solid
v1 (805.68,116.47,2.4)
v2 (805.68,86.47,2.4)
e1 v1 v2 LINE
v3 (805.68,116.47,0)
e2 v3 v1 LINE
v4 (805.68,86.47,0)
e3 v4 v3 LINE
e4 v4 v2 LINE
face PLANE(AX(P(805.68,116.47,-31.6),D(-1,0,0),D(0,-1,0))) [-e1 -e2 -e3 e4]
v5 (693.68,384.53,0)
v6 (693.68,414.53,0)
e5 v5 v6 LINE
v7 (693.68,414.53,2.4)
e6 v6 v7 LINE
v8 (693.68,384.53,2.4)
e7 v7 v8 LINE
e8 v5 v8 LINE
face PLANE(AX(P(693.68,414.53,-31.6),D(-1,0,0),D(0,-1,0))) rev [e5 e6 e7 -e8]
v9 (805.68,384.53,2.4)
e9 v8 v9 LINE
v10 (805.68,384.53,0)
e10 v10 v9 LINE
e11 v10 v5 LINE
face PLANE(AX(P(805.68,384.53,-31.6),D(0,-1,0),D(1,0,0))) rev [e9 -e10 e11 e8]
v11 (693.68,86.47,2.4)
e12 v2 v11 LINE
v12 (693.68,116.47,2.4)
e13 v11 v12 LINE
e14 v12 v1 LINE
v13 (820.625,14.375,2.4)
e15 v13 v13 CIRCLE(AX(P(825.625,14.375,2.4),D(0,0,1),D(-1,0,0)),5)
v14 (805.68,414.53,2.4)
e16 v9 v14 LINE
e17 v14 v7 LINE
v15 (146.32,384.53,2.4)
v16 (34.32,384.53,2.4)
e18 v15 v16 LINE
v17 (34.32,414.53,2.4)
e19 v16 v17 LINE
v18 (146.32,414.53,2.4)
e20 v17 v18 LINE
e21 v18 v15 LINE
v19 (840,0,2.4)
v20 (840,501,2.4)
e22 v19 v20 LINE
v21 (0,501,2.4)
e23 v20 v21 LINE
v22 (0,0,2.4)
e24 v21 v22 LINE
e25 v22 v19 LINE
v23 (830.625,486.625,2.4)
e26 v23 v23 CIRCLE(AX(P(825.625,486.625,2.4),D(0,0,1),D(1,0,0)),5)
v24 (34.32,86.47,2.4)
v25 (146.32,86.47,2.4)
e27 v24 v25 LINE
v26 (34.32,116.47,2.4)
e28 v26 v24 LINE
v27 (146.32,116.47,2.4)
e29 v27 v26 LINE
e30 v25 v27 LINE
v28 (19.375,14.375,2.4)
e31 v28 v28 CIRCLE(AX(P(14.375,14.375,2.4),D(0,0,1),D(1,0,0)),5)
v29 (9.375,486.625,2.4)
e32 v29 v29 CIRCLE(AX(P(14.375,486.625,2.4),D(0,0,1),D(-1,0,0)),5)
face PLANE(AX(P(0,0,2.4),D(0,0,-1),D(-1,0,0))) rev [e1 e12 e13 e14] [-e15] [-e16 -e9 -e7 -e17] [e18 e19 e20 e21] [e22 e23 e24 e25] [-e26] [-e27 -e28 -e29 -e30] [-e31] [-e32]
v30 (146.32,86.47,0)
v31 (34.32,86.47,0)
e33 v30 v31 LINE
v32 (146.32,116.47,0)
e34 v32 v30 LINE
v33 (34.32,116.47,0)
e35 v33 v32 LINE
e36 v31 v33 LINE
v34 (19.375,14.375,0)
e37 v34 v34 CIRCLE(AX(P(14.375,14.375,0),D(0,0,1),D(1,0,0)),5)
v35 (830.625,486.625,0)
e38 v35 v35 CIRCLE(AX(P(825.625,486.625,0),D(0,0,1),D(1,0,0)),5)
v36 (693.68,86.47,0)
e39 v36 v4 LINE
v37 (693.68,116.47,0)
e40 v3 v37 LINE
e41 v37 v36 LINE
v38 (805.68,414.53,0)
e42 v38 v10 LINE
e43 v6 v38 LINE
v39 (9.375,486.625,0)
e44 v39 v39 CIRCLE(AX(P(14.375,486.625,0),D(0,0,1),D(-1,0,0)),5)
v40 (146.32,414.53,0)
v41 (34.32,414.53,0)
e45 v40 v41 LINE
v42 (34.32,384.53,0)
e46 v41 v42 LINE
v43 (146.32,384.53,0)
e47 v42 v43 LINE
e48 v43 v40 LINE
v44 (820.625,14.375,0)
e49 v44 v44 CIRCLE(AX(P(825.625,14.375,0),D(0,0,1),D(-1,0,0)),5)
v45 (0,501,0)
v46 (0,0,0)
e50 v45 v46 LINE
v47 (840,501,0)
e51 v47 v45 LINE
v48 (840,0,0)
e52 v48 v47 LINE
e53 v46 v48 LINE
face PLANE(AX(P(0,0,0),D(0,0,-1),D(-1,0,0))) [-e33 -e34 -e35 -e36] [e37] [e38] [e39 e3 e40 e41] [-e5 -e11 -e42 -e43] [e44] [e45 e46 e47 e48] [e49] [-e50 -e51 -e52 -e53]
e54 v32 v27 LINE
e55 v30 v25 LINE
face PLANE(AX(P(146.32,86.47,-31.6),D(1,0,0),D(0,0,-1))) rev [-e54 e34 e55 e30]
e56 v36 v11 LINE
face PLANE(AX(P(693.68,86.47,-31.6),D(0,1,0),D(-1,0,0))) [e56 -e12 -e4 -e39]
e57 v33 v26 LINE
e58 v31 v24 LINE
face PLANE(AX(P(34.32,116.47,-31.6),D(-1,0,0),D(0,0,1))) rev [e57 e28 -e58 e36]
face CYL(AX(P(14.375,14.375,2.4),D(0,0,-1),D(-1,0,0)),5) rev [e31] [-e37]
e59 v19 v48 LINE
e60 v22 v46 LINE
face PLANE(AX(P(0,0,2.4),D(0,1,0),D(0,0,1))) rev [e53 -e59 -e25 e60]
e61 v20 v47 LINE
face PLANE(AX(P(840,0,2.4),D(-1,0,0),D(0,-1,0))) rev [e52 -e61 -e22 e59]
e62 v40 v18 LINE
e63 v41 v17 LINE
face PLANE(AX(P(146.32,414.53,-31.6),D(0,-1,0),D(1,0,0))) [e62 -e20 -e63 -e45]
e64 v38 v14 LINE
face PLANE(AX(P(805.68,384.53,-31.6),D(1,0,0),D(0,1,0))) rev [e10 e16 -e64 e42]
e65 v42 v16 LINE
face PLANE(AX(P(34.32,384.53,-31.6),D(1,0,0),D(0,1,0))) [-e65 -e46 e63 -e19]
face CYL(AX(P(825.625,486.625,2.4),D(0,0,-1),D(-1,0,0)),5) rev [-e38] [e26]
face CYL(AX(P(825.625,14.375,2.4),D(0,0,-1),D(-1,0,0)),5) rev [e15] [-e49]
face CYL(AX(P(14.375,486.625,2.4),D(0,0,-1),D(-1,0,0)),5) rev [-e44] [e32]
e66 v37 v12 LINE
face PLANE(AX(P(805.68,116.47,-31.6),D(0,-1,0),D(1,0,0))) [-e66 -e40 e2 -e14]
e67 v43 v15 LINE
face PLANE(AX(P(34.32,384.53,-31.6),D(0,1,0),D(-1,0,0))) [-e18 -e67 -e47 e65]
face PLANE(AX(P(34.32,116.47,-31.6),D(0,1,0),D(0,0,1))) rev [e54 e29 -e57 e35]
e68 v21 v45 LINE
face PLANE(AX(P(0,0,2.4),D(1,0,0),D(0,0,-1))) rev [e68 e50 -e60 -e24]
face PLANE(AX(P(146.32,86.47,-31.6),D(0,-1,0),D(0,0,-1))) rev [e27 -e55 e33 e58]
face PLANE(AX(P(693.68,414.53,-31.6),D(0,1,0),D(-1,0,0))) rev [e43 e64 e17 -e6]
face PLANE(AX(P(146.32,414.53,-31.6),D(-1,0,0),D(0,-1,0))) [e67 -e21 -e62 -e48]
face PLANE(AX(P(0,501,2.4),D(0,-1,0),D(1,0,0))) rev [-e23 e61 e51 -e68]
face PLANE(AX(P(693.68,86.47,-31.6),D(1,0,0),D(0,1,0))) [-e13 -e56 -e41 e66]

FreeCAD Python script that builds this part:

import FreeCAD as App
import Part
import Sketcher

V = App.Vector
Q = App.Units.Quantity

doc = App.newDocument("Part")
body = doc.addObject("PartDesign::Body", "Body")

sketch1 = body.newObject("Sketcher::SketchObject", "Sketch")
sketch1.AttachmentSupport = (doc.getObject("XY_Plane"), [""])
sketch1.MapMode = "FlatFace"
sketch1.addGeometry([
    Part.LineSegment(V(0, 501, 0), V(0, 0, 0)),
    Part.LineSegment(V(0, 0, 0), V(840, 0, 0)),
    Part.LineSegment(V(840, 0, 0), V(840, 501, 0)),
    Part.LineSegment(V(840, 501, 0), V(0, 501, 0)),
    Part.Circle(V(14, 14, 0), V(0, 0, 1), 5),
    Part.Circle(V(826, 14, 0), V(0, 0, 1), 5),
    Part.Circle(V(14, 487, 0), V(0, 0, 1), 5),
    Part.Circle(V(826, 487, 0), V(0, 0, 1), 5),
], False)
sketch1.addConstraint([
    Sketcher.Constraint("Coincident", 0, 2, 1, 1),
    Sketcher.Constraint("Coincident", 1, 2, 2, 1),
    Sketcher.Constraint("Coincident", 2, 2, 3, 1),
    Sketcher.Constraint("Coincident", 3, 2, 0, 1),
    Sketcher.Constraint("Vertical", 0),
    Sketcher.Constraint("Horizontal", 1),
    Sketcher.Constraint("Vertical", 2),
    Sketcher.Constraint("Horizontal", 3),
    Sketcher.Constraint("Coincident", 0, 2, -1, 1),
    Sketcher.Constraint("Equal", 4, 5),
    Sketcher.Constraint("Equal", 5, 6),
    Sketcher.Constraint("Equal", 6, 7),
    Sketcher.Constraint("Horizontal", 4, 3, 5, 3),
    Sketcher.Constraint("Horizontal", 6, 3, 7, 3),
    Sketcher.Constraint("Vertical", 4, 3, 6, 3),
    Sketcher.Constraint("Vertical", 5, 3, 7, 3),
    Sketcher.Constraint("Diameter", 4, Q("10 mm")),
    Sketcher.Constraint("DistanceX", 1, 1, 1, 2, Q("840 mm")),
    Sketcher.Constraint("DistanceY", 0, 2, 0, 1, Q("501 mm")),
    Sketcher.Constraint("DistanceX", 4, 3, 5, 3, Q("811.25 mm")),
    Sketcher.Constraint("DistanceY", 4, 3, 6, 3, Q("472.25 mm")),
    Sketcher.Constraint("DistanceX", -1, 1, 4, 3, Q("14.375 mm")),
    Sketcher.Constraint("DistanceY", -1, 1, 4, 3, Q("14.375 mm")),
])
pad1 = body.newObject("PartDesign::Pad", "Pad")
pad1.Profile = sketch1
pad1.Length = 2.4

sketch2 = body.newObject("Sketcher::SketchObject", "Sketch001")
sketch2.AttachmentSupport = (doc.getObject("XY_Plane"), [""])
sketch2.MapMode = "FlatFace"
sketch2.AttachmentOffset = App.Placement(V(0, 0, 2.4), App.Rotation())
sketch2.addGeometry([
    Part.LineSegment(V(34, 116, 0), V(34, 86, 0)),
    Part.LineSegment(V(34, 86, 0), V(146, 86, 0)),
    Part.LineSegment(V(146, 86, 0), V(146, 116, 0)),
    Part.LineSegment(V(146, 116, 0), V(34, 116, 0)),
], False)
sketch2.addConstraint([
    Sketcher.Constraint("Coincident", 0, 2, 1, 1),
    Sketcher.Constraint("Coincident", 1, 2, 2, 1),
    Sketcher.Constraint("Coincident", 2, 2, 3, 1),
    Sketcher.Constraint("Coincident", 3, 2, 0, 1),
    Sketcher.Constraint("Vertical", 0),
    Sketcher.Constraint("Horizontal", 1),
    Sketcher.Constraint("Vertical", 2),
    Sketcher.Constraint("Horizontal", 3),
    Sketcher.Constraint("DistanceX", 1, 1, 1, 2, Q("112 mm")),
    Sketcher.Constraint("DistanceY", 0, 2, 0, 1, Q("30 mm")),
    Sketcher.Constraint("DistanceX", -1, 1, 0, 2, Q("34.32 mm")),
    Sketcher.Constraint("DistanceY", -1, 1, 0, 2, Q("86.47 mm")),
])
pocket1 = body.newObject("PartDesign::Pocket", "Pocket")
pocket1.Profile = sketch2
pocket1.Length = 34
doc.recompute()

datumplane = body.newObject("PartDesign::Plane", "DatumPlane")
datumplane.AttachmentSupport = (doc.getObject("YZ_Plane"), [""])
datumplane.MapMode = "FlatFace"
datumplane.AttachmentOffset = App.Placement(V(0, 0, 420), App.Rotation())
mirrored = body.newObject("PartDesign::Mirrored", "Mirrored")
mirrored.Originals = [pocket1]
mirrored.MirrorPlane = (datumplane, [""])
body.Tip = mirrored
doc.recompute()

datumplane2 = body.newObject("PartDesign::Plane", "DatumPlane001")
datumplane2.AttachmentSupport = (doc.getObject("XZ_Plane"), [""])
datumplane2.MapMode = "FlatFace"
datumplane2.AttachmentOffset = App.Placement(V(0, 0, -250.5), App.Rotation())
mirrored2 = body.newObject("PartDesign::Mirrored", "Mirrored001")
mirrored2.Originals = [pocket1]
mirrored2.MirrorPlane = (datumplane2, [""])
body.Tip = mirrored2

sketch3 = body.newObject("Sketcher::SketchObject", "Sketch002")
sketch3.AttachmentSupport = (doc.getObject("XY_Plane"), [""])
sketch3.MapMode = "FlatFace"
sketch3.AttachmentOffset = App.Placement(V(0, 0, 2.4), App.Rotation())
sketch3.addGeometry([
    Part.LineSegment(V(806, 385, 0), V(806, 415, 0)),
    Part.LineSegment(V(806, 415, 0), V(694, 415, 0)),
    Part.LineSegment(V(694, 415, 0), V(694, 385, 0)),
    Part.LineSegment(V(694, 385, 0), V(806, 385, 0)),
], False)
sketch3.addConstraint([
    Sketcher.Constraint("Coincident", 0, 2, 1, 1),
    Sketcher.Constraint("Coincident", 1, 2, 2, 1),
    Sketcher.Constraint("Coincident", 2, 2, 3, 1),
    Sketcher.Constraint("Coincident", 3, 2, 0, 1),
    Sketcher.Constraint("Vertical", 0),
    Sketcher.Constraint("Horizontal", 1),
    Sketcher.Constraint("Vertical", 2),
    Sketcher.Constraint("Horizontal", 3),
    Sketcher.Constraint("DistanceX", 1, 2, 1, 1, Q("112 mm")),
    Sketcher.Constraint("DistanceY", 0, 1, 0, 2, Q("30 mm")),
    Sketcher.Constraint("DistanceX", -1, 1, 0, 2, Q("805.68 mm")),
    Sketcher.Constraint("DistanceY", -1, 1, 0, 2, Q("414.53 mm")),
])
pocket2 = body.newObject("PartDesign::Pocket", "Pocket001")
pocket2.Profile = sketch3
pocket2.Length = 34

doc.recompute()
